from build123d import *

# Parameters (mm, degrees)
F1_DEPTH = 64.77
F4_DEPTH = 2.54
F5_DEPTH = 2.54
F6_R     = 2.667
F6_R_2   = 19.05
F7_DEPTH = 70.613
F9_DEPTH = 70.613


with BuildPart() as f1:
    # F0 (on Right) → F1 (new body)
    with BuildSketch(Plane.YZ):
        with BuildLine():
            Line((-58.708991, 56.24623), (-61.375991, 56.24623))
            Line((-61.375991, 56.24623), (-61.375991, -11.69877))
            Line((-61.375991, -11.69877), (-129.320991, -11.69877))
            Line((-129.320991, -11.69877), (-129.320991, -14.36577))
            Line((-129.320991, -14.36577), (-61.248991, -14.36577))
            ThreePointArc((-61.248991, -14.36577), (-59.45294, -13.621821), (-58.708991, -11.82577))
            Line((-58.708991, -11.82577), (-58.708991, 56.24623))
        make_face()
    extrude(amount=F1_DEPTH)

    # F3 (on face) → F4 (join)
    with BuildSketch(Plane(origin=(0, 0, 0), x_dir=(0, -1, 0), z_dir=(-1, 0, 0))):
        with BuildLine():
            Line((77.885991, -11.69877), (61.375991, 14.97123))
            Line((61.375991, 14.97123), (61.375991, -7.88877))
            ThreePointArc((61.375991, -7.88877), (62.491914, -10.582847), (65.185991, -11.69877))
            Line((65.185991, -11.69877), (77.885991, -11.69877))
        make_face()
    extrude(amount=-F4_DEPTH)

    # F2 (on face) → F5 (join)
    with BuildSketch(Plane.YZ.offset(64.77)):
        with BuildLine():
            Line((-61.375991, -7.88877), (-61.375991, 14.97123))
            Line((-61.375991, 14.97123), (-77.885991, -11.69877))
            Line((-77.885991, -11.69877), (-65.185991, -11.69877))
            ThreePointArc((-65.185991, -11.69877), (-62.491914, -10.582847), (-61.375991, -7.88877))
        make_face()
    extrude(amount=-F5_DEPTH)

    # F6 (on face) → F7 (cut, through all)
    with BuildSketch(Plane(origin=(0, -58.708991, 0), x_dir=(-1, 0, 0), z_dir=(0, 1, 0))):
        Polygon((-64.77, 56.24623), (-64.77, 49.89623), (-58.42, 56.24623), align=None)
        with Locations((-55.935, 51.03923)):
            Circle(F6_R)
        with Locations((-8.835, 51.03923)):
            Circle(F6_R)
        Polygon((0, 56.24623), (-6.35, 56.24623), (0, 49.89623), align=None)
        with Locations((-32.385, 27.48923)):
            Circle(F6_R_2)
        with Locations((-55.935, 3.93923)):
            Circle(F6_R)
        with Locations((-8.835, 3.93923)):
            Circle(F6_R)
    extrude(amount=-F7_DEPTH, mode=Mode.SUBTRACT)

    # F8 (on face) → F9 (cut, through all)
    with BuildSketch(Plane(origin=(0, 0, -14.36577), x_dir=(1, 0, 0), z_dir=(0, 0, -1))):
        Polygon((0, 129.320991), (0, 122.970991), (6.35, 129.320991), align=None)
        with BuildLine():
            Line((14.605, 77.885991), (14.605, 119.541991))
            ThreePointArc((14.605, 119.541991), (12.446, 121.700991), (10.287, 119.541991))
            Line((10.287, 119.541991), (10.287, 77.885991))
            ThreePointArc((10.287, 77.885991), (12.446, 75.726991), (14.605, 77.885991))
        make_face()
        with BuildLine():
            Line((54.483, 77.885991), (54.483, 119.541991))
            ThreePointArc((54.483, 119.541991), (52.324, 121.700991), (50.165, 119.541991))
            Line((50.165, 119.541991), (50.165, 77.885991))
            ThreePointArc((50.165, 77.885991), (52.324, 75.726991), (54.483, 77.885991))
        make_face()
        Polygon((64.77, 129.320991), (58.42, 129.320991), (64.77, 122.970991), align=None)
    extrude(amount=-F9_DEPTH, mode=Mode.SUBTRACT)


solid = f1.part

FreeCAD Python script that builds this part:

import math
import FreeCAD as App
import Part
import Sketcher

V = App.Vector
Q = App.Units.Quantity

doc = App.newDocument("Part")
params = doc.addObject("Spreadsheet::Sheet", "Params")
for row, (alias, value) in enumerate([
    ("sketch1_radius", "0.1 in"),
    ("sketch1_width", "2.68 in"),
    ("sketch1_width2", "0.105 in"),
    ("pad1_length", "2.55 in"),
    ("sketch2_radius", "0.15 in"),
    ("sketch2_width", "0.5 in"),
    ("sketch2_height", "0.9 in"),
    ("pad2_length", "0.1 in"),
    ("sketch3_radius", "0.15 in"),
    ("sketch3_width", "0.5 in"),
    ("sketch3_height", "0.9 in"),
    ("pad3_length", "0.1 in"),
    ("sketch4_diameter", "1.5 in"),
    ("sketch4_diameter2", "0.21 in"),
    ("sketch4_width", "0.25 in"),
    ("sketch5_radius", "0.085 in"),
    ("sketch5_width", "0.25 in"),
    ("sketch5_height", "1.64 in"),
], start=1):
    params.set(f"A{row}", alias)
    params.set(f"B{row}", "=" + value)
    params.setAlias(f"B{row}", alias)

body = doc.addObject("PartDesign::Body", "Body")

# Sketch on YZ plane
sketch1 = doc.addObject("Sketcher::SketchObject", "Sketch")
body.addObject(sketch1)
sketch1.AttachmentSupport = (doc.YZ_Plane, [""])
sketch1.MapMode = "FlatFace"
sketch1.addGeometry([
    Part.LineSegment(V(-58.7, 56.2, 0), V(-61.4, 56.2, 0)),  # 0
    Part.LineSegment(V(-61.4, 56.2, 0), V(-61.4, -11.7, 0)),  # 1
    Part.LineSegment(V(-61.4, -11.7, 0), V(-129.3, -11.7, 0)),  # 2
    Part.LineSegment(V(-129.3, -11.7, 0), V(-129.3, -14.4, 0)),  # 3
    Part.LineSegment(V(-129.3, -14.4, 0), V(-61.2, -14.4, 0)),  # 4
    Part.ArcOfCircle(Part.Circle(V(-61.2, -11.8, 0), V(0, 0, 1), 2.5), math.radians(-90), math.radians(0)),  # 5
    Part.LineSegment(V(-58.7, -11.8, 0), V(-58.7, 56.2, 0)),  # 6
], False)
sketch1.addConstraint([
    Sketcher.Constraint("Coincident", 0, 2, 1, 1),
    Sketcher.Constraint("Coincident", 1, 2, 2, 1),
    Sketcher.Constraint("Coincident", 2, 2, 3, 1),
    Sketcher.Constraint("Coincident", 3, 2, 4, 1),
    Sketcher.Constraint("Tangent", 4, 2, 5, 1),
    Sketcher.Constraint("Tangent", 5, 2, 6, 1),
    Sketcher.Constraint("Coincident", 6, 2, 0, 1),
    Sketcher.Constraint("Horizontal", 0),
    Sketcher.Constraint("Vertical", 1),
    Sketcher.Constraint("Horizontal", 2),
    Sketcher.Constraint("Vertical", 3),
    Sketcher.Constraint("Horizontal", 4),
    Sketcher.Constraint("Vertical", 6),
    Sketcher.Constraint("Equal", 2, 1),
    Sketcher.Constraint("Equal", 0, 3),
    Sketcher.Constraint("Radius", 5, Q("0.1 in")),
    Sketcher.Constraint("DistanceX", 4, 1, 4, 2, Q("2.68 in")),
    Sketcher.Constraint("DistanceX", 0, 2, 0, 1, Q("0.105 in")),
    Sketcher.Constraint("DistanceX", 5, 3, -1, 1, Q("61.248992 mm")),
    Sketcher.Constraint("DistanceY", 5, 3, -1, 1, Q("11.825769 mm")),
])
sketch1.setExpression("Constraints[15]", "Params.sketch1_radius")
sketch1.setExpression("Constraints[16]", "Params.sketch1_width")
sketch1.setExpression("Constraints[17]", "Params.sketch1_width2")
pad1 = doc.addObject("PartDesign::Pad", "Pad")
body.addObject(pad1)
pad1.Profile = sketch1
pad1.setExpression("Length", "Params.pad1_length")

# Sketch on YZ plane
sketch2 = doc.addObject("Sketcher::SketchObject", "Sketch001")
body.addObject(sketch2)
sketch2.AttachmentSupport = (doc.YZ_Plane, [""])
sketch2.MapMode = "FlatFace"
sketch2.addGeometry([
    Part.LineSegment(V(-77.9, -11.7, 0), V(-61.4, 15, 0)),
    Part.LineSegment(V(-61.4, 15, 0), V(-61.4, -7.9, 0)),
    Part.ArcOfCircle(Part.Circle(V(-65.2, -7.9, 0), V(0, 0, 1), 3.8), math.radians(-90), math.radians(0)),
    Part.LineSegment(V(-65.2, -11.7, 0), V(-77.9, -11.7, 0)),
], False)
sketch2.addConstraint([
    Sketcher.Constraint("Coincident", 0, 2, 1, 1),
    Sketcher.Constraint("Tangent", 1, 2, 2, 2),
    Sketcher.Constraint("Tangent", 2, 1, 3, 1),
    Sketcher.Constraint("Coincident", 3, 2, 0, 1),
    Sketcher.Constraint("Vertical", 1),
    Sketcher.Constraint("Horizontal", 3),
    Sketcher.Constraint("Radius", 2, Q("0.15 in")),
    Sketcher.Constraint("DistanceX", 3, 2, 3, 1, Q("0.5 in")),
    Sketcher.Constraint("DistanceY", 1, 2, 1, 1, Q("0.9 in")),
    Sketcher.Constraint("DistanceX", 2, 3, -1, 1, Q("65.18599 mm")),
    Sketcher.Constraint("DistanceY", 2, 3, -1, 1, Q("7.888771 mm")),
])
sketch2.setExpression("Constraints[6]", "Params.sketch2_radius")
sketch2.setExpression("Constraints[7]", "Params.sketch2_width")
sketch2.setExpression("Constraints[8]", "Params.sketch2_height")
pad2 = doc.addObject("PartDesign::Pad", "Pad001")
body.addObject(pad2)
pad2.Profile = sketch2
pad2.setExpression("Length", "Params.pad2_length")

# Sketch on YZ plane
sketch3 = doc.addObject("Sketcher::SketchObject", "Sketch002")
body.addObject(sketch3)
sketch3.AttachmentSupport = (doc.YZ_Plane, [""])
sketch3.MapMode = "FlatFace"
sketch3.AttachmentOffset = App.Placement(V(0, 0, 2.55 * 25.4), App.Rotation())
sketch3.addGeometry([
    Part.LineSegment(V(-61.4, -7.9, 0), V(-61.4, 15, 0)),
    Part.LineSegment(V(-61.4, 15, 0), V(-77.9, -11.7, 0)),
    Part.LineSegment(V(-77.9, -11.7, 0), V(-65.2, -11.7, 0)),
    Part.ArcOfCircle(Part.Circle(V(-65.2, -7.9, 0), V(0, 0, 1), 3.8), math.radians(-90), math.radians(0)),
], False)
sketch3.addConstraint([
    Sketcher.Constraint("Coincident", 0, 2, 1, 1),
    Sketcher.Constraint("Coincident", 1, 2, 2, 1),
    Sketcher.Constraint("Tangent", 2, 2, 3, 1),
    Sketcher.Constraint("Tangent", 3, 2, 0, 1),
    Sketcher.Constraint("Vertical", 0),
    Sketcher.Constraint("Horizontal", 2),
    Sketcher.Constraint("Radius", 3, Q("0.15 in")),
    Sketcher.Constraint("DistanceX", 2, 1, 2, 2, Q("0.5 in")),
    Sketcher.Constraint("DistanceY", 0, 1, 0, 2, Q("0.9 in")),
    Sketcher.Constraint("DistanceX", 3, 3, -1, 1, Q("65.18599 mm")),
    Sketcher.Constraint("DistanceY", 3, 3, -1, 1, Q("7.888771 mm")),
])
sketch3.setExpression("Constraints[6]", "Params.sketch3_radius")
sketch3.setExpression("Constraints[7]", "Params.sketch3_width")
sketch3.setExpression("Constraints[8]", "Params.sketch3_height")
pad3 = doc.addObject("PartDesign::Pad", "Pad002")
body.addObject(pad3)
pad3.Profile = sketch3
pad3.setExpression("Length", "Params.pad3_length")
pad3.Reversed = True

# Sketch on XZ plane
sketch4 = doc.addObject("Sketcher::SketchObject", "Sketch003")
body.addObject(sketch4)
sketch4.AttachmentSupport = (doc.XZ_Plane, [""])
sketch4.MapMode = "FlatFace"
sketch4.AttachmentOffset = App.Placement(V(0, 0, 58.708991), App.Rotation())
sketch4.addGeometry([
    Part.LineSegment(V(64.8, 56.2, 0), V(64.8, 49.9, 0)),  # 0
    Part.LineSegment(V(64.8, 49.9, 0), V(58.4, 56.2, 0)),  # 1
    Part.LineSegment(V(58.4, 56.2, 0), V(64.8, 56.2, 0)),  # 2
    Part.Circle(V(55.9, 51, 0), V(0, 0, 1), 2.7),  # 3
    Part.Circle(V(8.8, 51, 0), V(0, 0, 1), 2.7),  # 4
    Part.LineSegment(V(0, 56.2, 0), V(6.3, 56.2, 0)),  # 5
    Part.LineSegment(V(6.3, 56.2, 0), V(0, 49.9, 0)),  # 6
    Part.LineSegment(V(0, 49.9, 0), V(0, 56.2, 0)),  # 7
    Part.Circle(V(32.4, 27.5, 0), V(0, 0, 1), 19.1),  # 8
    Part.Circle(V(55.9, 3.9, 0), V(0, 0, 1), 2.7),  # 9
    Part.Circle(V(8.8, 3.9, 0), V(0, 0, 1), 2.7),  # 10
], False)
sketch4.addConstraint([
    Sketcher.Constraint("Coincident", 0, 2, 1, 1),
    Sketcher.Constraint("Coincident", 1, 2, 2, 1),
    Sketcher.Constraint("Coincident", 2, 2, 0, 1),
    Sketcher.Constraint("Coincident", 5, 2, 6, 1),
    Sketcher.Constraint("Coincident", 6, 2, 7, 1),
    Sketcher.Constraint("Coincident", 7, 2, 5, 1),
    Sketcher.Constraint("Vertical", 0),
    Sketcher.Constraint("Horizontal", 2),
    Sketcher.Constraint("Horizontal", 5),
    Sketcher.Constraint("Vertical", 7),
    Sketcher.Constraint("Equal", 3, 4),
    Sketcher.Constraint("Equal", 4, 9),
    Sketcher.Constraint("Equal", 9, 10),
    Sketcher.Constraint("PointOnObject", 6, 2, -2),
    Sketcher.Constraint("Perpendicular", 1, 6),
    Sketcher.Constraint("Horizontal", 3, 3, 4, 3),
    Sketcher.Constraint("Horizontal", 9, 3, 10, 3),
    Sketcher.Constraint("Horizontal", 2, 2, 5, 2),
    Sketcher.Constraint("Horizontal", 0, 2, 6, 2),
    Sketcher.Constraint("Vertical", 3, 3, 9, 3),
    Sketcher.Constraint("Vertical", 4, 3, 10, 3),
    Sketcher.Constraint("Equal", 2, 5),
    Sketcher.Constraint("Diameter", 8, Q("1.5 in")),
    Sketcher.Constraint("Diameter", 3, Q("0.21 in")),
    Sketcher.Constraint("DistanceX", 2, 1, 2, 2, Q("0.25 in")),
    Sketcher.Constraint("DistanceX", -1, 1, 1, 2, Q("2.3 in")),
    Sketcher.Constraint("DistanceX", -1, 1, 8, 3, Q("1.275 in")),
    Sketcher.Constraint("DistanceY", 0, 2, 3, 3, Q("0.045 in")),
    Sketcher.Constraint("DistanceX", -1, 1, 3, 3, Q("55.935 mm")),
    Sketcher.Constraint("DistanceX", -1, 1, 4, 3, Q("8.835 mm")),
    Sketcher.Constraint("DistanceY", 8, 3, 4, 3, Q("23.55 mm")),
    Sketcher.Constraint("DistanceY", 9, 3, 8, 3, Q("23.55 mm")),
    Sketcher.Constraint("DistanceY", -1, 1, 3, 3, Q("51.03923 mm")),
])
sketch4.setExpression("Constraints[22]", "Params.sketch4_diameter")
sketch4.setExpression("Constraints[23]", "Params.sketch4_diameter2")
sketch4.setExpression("Constraints[24]", "Params.sketch4_width")
pocket1 = doc.addObject("PartDesign::Pocket", "Pocket")
body.addObject(pocket1)
pocket1.Profile = sketch4
pocket1.Type = "ThroughAll"
pocket1.Reversed = True

# Sketch on XY plane
sketch5 = doc.addObject("Sketcher::SketchObject", "Sketch004")
body.addObject(sketch5)
sketch5.AttachmentSupport = (doc.XY_Plane, [""])
sketch5.MapMode = "FlatFace"
sketch5.AttachmentOffset = App.Placement(V(0, 0, -14.36577), App.Rotation())
sketch5.addGeometry([
    Part.LineSegment(V(0, -129.3, 0), V(0, -123, 0)),  # 0
    Part.LineSegment(V(0, -123, 0), V(6.3, -129.3, 0)),  # 1
    Part.LineSegment(V(6.3, -129.3, 0), V(0, -129.3, 0)),  # 2
    Part.LineSegment(V(14.6, -77.9, 0), V(14.6, -119.5, 0)),  # 3
    Part.ArcOfCircle(Part.Circle(V(12.4, -119.5, 0), V(0, 0, 1), 2.2), math.radians(180), math.radians(360)),  # 4
    Part.LineSegment(V(10.3, -119.5, 0), V(10.3, -77.9, 0)),  # 5
    Part.ArcOfCircle(Part.Circle(V(12.4, -77.9, 0), V(0, 0, 1), 2.2), math.radians(0), math.radians(180)),  # 6
    Part.LineSegment(V(54.5, -77.9, 0), V(54.5, -119.5, 0)),  # 7
    Part.ArcOfCircle(Part.Circle(V(52.3, -119.5, 0), V(0, 0, 1), 2.2), math.radians(180), math.radians(360)),  # 8
    Part.LineSegment(V(50.2, -119.5, 0), V(50.2, -77.9, 0)),  # 9
    Part.ArcOfCircle(Part.Circle(V(52.3, -77.9, 0), V(0, 0, 1), 2.2), math.radians(0), math.radians(180)),  # 10
    Part.LineSegment(V(64.8, -129.3, 0), V(58.4, -129.3, 0)),  # 11
    Part.LineSegment(V(58.4, -129.3, 0), V(64.8, -123, 0)),  # 12
    Part.LineSegment(V(64.8, -123, 0), V(64.8, -129.3, 0)),  # 13
], False)
sketch5.addConstraint([
    Sketcher.Constraint("Coincident", 0, 2, 1, 1),
    Sketcher.Constraint("Coincident", 1, 2, 2, 1),
    Sketcher.Constraint("Coincident", 2, 2, 0, 1),
    Sketcher.Constraint("Tangent", 3, 2, 4, 2),
    Sketcher.Constraint("Tangent", 4, 1, 5, 1),
    Sketcher.Constraint("Tangent", 5, 2, 6, 2),
    Sketcher.Constraint("Tangent", 6, 1, 3, 1),
    Sketcher.Constraint("Tangent", 7, 2, 8, 2),
    Sketcher.Constraint("Tangent", 8, 1, 9, 1),
    Sketcher.Constraint("Tangent", 9, 2, 10, 2),
    Sketcher.Constraint("Tangent", 10, 1, 7, 1),
    Sketcher.Constraint("Coincident", 11, 2, 12, 1),
    Sketcher.Constraint("Coincident", 12, 2, 13, 1),
    Sketcher.Constraint("Coincident", 13, 2, 11, 1),
    Sketcher.Constraint("Vertical", 0),
    Sketcher.Constraint("Horizontal", 2),
    Sketcher.Constraint("Vertical", 3),
    Sketcher.Constraint("Vertical", 5),
    Sketcher.Constraint("Vertical", 7),
    Sketcher.Constraint("Vertical", 9),
    Sketcher.Constraint("Horizontal", 11),
    Sketcher.Constraint("Vertical", 13),
    Sketcher.Constraint("Equal", 6, 8),
    Sketcher.Constraint("PointOnObject", 0, 2, -2),
    Sketcher.Constraint("Perpendicular", 1, 12),
    Sketcher.Constraint("Horizontal", 4, 3, 8, 3),
    Sketcher.Constraint("Horizontal", 6, 3, 10, 3),
    Sketcher.Constraint("Horizontal", 2, 2, 11, 2),
    Sketcher.Constraint("Horizontal", 0, 2, 12, 2),
    Sketcher.Constraint("Equal", 2, 11),
    Sketcher.Constraint("Radius", 4, Q("0.085 in")),
    Sketcher.Constraint("DistanceX", 2, 2, 2, 1, Q("0.25 in")),
    Sketcher.Constraint("DistanceY", 3, 2, 3, 1, Q("1.64 in")),
    Sketcher.Constraint("DistanceX", -1, 1, 11, 2, Q("2.3 in")),
    Sketcher.Constraint("DistanceX", 3, 2, 8, 1, Q("1.4 in")),
    Sketcher.Constraint("DistanceX", -1, 1, 4, 3, Q("0.49 in")),
    Sketcher.Constraint("DistanceY", 0, 2, 4, 3, Q("0.135 in")),
    Sketcher.Constraint("DistanceY", 4, 3, -1, 1, Q("119.541991 mm")),
])
sketch5.setExpression("Constraints[30]", "Params.sketch5_radius")
sketch5.setExpression("Constraints[31]", "Params.sketch5_width")
sketch5.setExpression("Constraints[32]", "Params.sketch5_height")
pocket2 = doc.addObject("PartDesign::Pocket", "Pocket001")
body.addObject(pocket2)
pocket2.Profile = sketch5
pocket2.Type = "ThroughAll"
pocket2.Reversed = True

doc.recompute()
